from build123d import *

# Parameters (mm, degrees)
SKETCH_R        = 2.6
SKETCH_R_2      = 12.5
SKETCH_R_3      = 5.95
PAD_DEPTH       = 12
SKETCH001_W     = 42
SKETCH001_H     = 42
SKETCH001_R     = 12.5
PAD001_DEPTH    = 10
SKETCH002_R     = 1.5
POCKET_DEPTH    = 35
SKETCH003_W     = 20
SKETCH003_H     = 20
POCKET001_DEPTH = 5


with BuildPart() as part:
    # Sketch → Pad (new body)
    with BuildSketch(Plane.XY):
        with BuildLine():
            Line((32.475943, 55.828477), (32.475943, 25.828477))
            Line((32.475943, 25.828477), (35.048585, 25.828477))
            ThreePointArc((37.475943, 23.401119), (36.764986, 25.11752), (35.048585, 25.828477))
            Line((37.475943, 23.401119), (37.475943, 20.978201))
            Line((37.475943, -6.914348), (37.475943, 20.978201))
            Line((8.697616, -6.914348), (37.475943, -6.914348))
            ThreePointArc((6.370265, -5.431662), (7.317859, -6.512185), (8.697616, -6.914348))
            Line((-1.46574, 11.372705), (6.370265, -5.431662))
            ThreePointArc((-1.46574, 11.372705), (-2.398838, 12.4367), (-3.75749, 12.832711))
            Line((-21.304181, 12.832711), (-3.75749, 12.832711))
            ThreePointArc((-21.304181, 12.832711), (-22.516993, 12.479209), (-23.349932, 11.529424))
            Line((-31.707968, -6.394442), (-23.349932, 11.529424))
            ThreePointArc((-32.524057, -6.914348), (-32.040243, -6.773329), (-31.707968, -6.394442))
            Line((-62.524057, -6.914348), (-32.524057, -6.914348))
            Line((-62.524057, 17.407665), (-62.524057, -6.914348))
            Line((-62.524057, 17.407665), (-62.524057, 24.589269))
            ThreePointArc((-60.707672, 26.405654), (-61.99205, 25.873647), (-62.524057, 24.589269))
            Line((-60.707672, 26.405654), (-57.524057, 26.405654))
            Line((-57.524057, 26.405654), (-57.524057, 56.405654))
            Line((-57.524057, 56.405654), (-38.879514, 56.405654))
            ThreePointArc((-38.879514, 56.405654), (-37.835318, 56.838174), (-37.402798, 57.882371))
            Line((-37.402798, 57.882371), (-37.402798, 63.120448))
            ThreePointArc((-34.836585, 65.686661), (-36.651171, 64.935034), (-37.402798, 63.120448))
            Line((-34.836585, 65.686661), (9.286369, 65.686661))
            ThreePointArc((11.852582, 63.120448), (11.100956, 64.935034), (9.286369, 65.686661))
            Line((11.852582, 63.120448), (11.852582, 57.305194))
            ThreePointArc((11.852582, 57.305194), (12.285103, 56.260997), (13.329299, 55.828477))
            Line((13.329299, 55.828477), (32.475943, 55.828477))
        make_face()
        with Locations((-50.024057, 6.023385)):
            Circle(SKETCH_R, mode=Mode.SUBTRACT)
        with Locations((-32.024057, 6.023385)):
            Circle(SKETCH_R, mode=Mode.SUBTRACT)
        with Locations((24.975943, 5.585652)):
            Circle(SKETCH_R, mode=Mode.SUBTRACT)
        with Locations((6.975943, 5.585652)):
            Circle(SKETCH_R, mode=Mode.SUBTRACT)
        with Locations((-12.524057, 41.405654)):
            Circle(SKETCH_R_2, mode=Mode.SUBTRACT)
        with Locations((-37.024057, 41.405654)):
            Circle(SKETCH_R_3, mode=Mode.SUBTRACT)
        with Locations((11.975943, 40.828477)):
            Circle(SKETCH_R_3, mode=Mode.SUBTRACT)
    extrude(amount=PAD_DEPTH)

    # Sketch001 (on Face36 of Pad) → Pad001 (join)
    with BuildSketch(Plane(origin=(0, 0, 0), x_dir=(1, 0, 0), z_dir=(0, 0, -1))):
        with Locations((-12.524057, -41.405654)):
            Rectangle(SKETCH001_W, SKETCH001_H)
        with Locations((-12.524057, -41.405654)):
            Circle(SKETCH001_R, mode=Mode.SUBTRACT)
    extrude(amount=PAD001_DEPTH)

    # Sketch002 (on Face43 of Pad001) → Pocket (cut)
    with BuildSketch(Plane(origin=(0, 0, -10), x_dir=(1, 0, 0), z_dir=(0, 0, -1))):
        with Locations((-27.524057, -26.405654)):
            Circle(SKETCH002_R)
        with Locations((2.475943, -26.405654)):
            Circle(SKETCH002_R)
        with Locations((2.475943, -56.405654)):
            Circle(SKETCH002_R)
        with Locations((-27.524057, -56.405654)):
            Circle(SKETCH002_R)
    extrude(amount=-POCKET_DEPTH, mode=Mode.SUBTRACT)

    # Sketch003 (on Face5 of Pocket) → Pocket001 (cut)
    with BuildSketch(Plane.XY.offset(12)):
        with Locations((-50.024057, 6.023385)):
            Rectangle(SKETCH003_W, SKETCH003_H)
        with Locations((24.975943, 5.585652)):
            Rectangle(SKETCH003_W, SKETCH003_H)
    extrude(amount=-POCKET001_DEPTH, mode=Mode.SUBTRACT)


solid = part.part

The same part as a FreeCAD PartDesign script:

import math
import FreeCAD as App
import Part
import Sketcher
from FreeCAD import Vector
Q = App.Units.Quantity

doc = App.newDocument("Part")
params = doc.addObject("Spreadsheet::Sheet", "Params")
for row, (alias, value) in enumerate([
    ("sketch1_diameter", "25 mm"),
    ("sketch1_diameter2", "5.2 mm"),
    ("sketch1_diameter3", "11.9 mm"),
    ("sketch1_width", "30 mm"),
    ("pad1_length", "12 mm"),
    ("sketch2_diameter", "25 mm"),
    ("sketch2_width", "42 mm"),
    ("pad2_length", "10 mm"),
    ("sketch3_diameter", "3 mm"),
    ("pocket1_length", "35 mm"),
    ("sketch4_width", "20 mm"),
    ("pocket2_length", "5 mm"),
], start=1):
    params.set(f"A{row}", alias)
    params.set(f"B{row}", "=" + value)
    params.setAlias(f"B{row}", alias)

body = doc.addObject("PartDesign::Body", "Body")

sketch1 = body.newObject("Sketcher::SketchObject", "Sketch")
sketch1.AttachmentSupport = (doc.getObject("XY_Plane"), [""])
sketch1.MapMode = "FlatFace"
sketch1.addGeometry(Part.LineSegment(Vector(32.5, 25.8, 0), Vector(32.5, 55.8, 0)), False)
sketch1.addGeometry(Part.LineSegment(Vector(32.5, 55.8, 0), Vector(13.3, 55.8, 0)), False)
sketch1.addGeometry(Part.ArcOfCircle(Part.Circle(Vector(13.3, 57.3, 0), Vector(0, 0, 1), 1.5), math.radians(-180), math.radians(-90)), False)
sketch1.addGeometry(Part.LineSegment(Vector(11.9, 57.3, 0), Vector(11.9, 63.1, 0)), False)
sketch1.addGeometry(Part.ArcOfCircle(Part.Circle(Vector(9.3, 63.1, 0), Vector(0, 0, 1), 2.6), math.radians(0), math.radians(90)), False)
sketch1.addGeometry(Part.LineSegment(Vector(9.3, 65.7, 0), Vector(-34.8, 65.7, 0)), False)
sketch1.addGeometry(Part.ArcOfCircle(Part.Circle(Vector(-34.8, 63.1, 0), Vector(0, 0, 1), 2.6), math.radians(90), math.radians(180)), False)
sketch1.addGeometry(Part.LineSegment(Vector(-37.4, 63.1, 0), Vector(-37.4, 57.9, 0)), False)
sketch1.addGeometry(Part.ArcOfCircle(Part.Circle(Vector(-38.9, 57.9, 0), Vector(0, 0, 1), 1.5), math.radians(-90), math.radians(0)), False)
sketch1.addGeometry(Part.LineSegment(Vector(-38.9, 56.4, 0), Vector(-57.5, 56.4, 0)), False)
sketch1.addGeometry(Part.LineSegment(Vector(-57.5, 56.4, 0), Vector(-57.5, 26.4, 0)), False)
sketch1.addGeometry(Part.LineSegment(Vector(-57.5, 26.4, 0), Vector(-60.7, 26.4, 0)), False)
sketch1.addGeometry(Part.ArcOfCircle(Part.Circle(Vector(-60.7, 24.6, 0), Vector(0, 0, 1), 1.8), math.radians(90), math.radians(180)), False)
sketch1.addGeometry(Part.LineSegment(Vector(-62.5, 24.6, 0), Vector(-62.5, -6.9, 0)), False)
sketch1.addGeometry(Part.LineSegment(Vector(-62.5, -6.9, 0), Vector(-32.5, -6.9, 0)), False)
sketch1.addGeometry(Part.ArcOfCircle(Part.Circle(Vector(-32.5, -6, 0), Vector(0, 0, 1), 0.9), math.radians(-90), math.radians(-25)), False)
sketch1.addGeometry(Part.LineSegment(Vector(-31.7, -6.4, 0), Vector(-23.3, 11.5, 0)), False)
sketch1.addGeometry(Part.ArcOfCircle(Part.Circle(Vector(-21.3, 10.6, 0), Vector(0, 0, 1), 2.3), math.radians(90), math.radians(155)), False)
sketch1.addGeometry(Part.LineSegment(Vector(-21.3, 12.8, 0), Vector(-3.8, 12.8, 0)), False)
sketch1.addGeometry(Part.ArcOfCircle(Part.Circle(Vector(-3.8, 10.3, 0), Vector(0, 0, 1), 2.5), math.radians(25), math.radians(90)), False)
sketch1.addGeometry(Part.LineSegment(Vector(-1.5, 11.4, 0), Vector(6.4, -5.4, 0)), False)
sketch1.addGeometry(Part.ArcOfCircle(Part.Circle(Vector(8.7, -4.3, 0), Vector(0, 0, 1), 2.6), math.radians(-155), math.radians(-90)), False)
sketch1.addGeometry(Part.LineSegment(Vector(8.7, -6.9, 0), Vector(37.5, -6.9, 0)), False)
sketch1.addGeometry(Part.LineSegment(Vector(37.5, -6.9, 0), Vector(37.5, 23.4, 0)), False)
sketch1.addGeometry(Part.ArcOfCircle(Part.Circle(Vector(35, 23.4, 0), Vector(0, 0, 1), 2.4), math.radians(0), math.radians(90)), False)
sketch1.addGeometry(Part.LineSegment(Vector(35, 25.8, 0), Vector(32.5, 25.8, 0)), False)
sketch1.addGeometry(Part.Circle(Vector(25, 5.6, 0), Vector(0, 0, 1), 2.6), False)
sketch1.addGeometry(Part.Circle(Vector(7, 5.6, 0), Vector(0, 0, 1), 2.6), False)
sketch1.addGeometry(Part.Circle(Vector(-32, 6, 0), Vector(0, 0, 1), 2.6), False)
sketch1.addGeometry(Part.Circle(Vector(-50, 6, 0), Vector(0, 0, 1), 2.6), False)
sketch1.addGeometry(Part.Circle(Vector(12, 40.8, 0), Vector(0, 0, 1), 6), False)
sketch1.addGeometry(Part.Circle(Vector(-12.5, 41.4, 0), Vector(0, 0, 1), 12.5), False)
sketch1.addGeometry(Part.Circle(Vector(-37, 41.4, 0), Vector(0, 0, 1), 6), False)
sketch1.addConstraint(Sketcher.Constraint("Coincident", 0, 2, 1, 1))
sketch1.addConstraint(Sketcher.Constraint("Tangent", 1, 2, 2, 2))
sketch1.addConstraint(Sketcher.Constraint("Tangent", 2, 1, 3, 1))
sketch1.addConstraint(Sketcher.Constraint("Tangent", 3, 2, 4, 1))
sketch1.addConstraint(Sketcher.Constraint("Tangent", 4, 2, 5, 1))
sketch1.addConstraint(Sketcher.Constraint("Tangent", 5, 2, 6, 1))
sketch1.addConstraint(Sketcher.Constraint("Tangent", 6, 2, 7, 1))
sketch1.addConstraint(Sketcher.Constraint("Tangent", 7, 2, 8, 2))
sketch1.addConstraint(Sketcher.Constraint("Tangent", 8, 1, 9, 1))
sketch1.addConstraint(Sketcher.Constraint("Coincident", 9, 2, 10, 1))
sketch1.addConstraint(Sketcher.Constraint("Coincident", 10, 2, 11, 1))
sketch1.addConstraint(Sketcher.Constraint("Tangent", 11, 2, 12, 1))
sketch1.addConstraint(Sketcher.Constraint("Tangent", 12, 2, 13, 1))
sketch1.addConstraint(Sketcher.Constraint("Coincident", 13, 2, 14, 1))
sketch1.addConstraint(Sketcher.Constraint("Tangent", 14, 2, 15, 1))
sketch1.addConstraint(Sketcher.Constraint("Tangent", 15, 2, 16, 1))
sketch1.addConstraint(Sketcher.Constraint("Tangent", 16, 2, 17, 2))
sketch1.addConstraint(Sketcher.Constraint("Tangent", 17, 1, 18, 1))
sketch1.addConstraint(Sketcher.Constraint("Tangent", 18, 2, 19, 2))
sketch1.addConstraint(Sketcher.Constraint("Tangent", 19, 1, 20, 1))
sketch1.addConstraint(Sketcher.Constraint("Tangent", 20, 2, 21, 1))
sketch1.addConstraint(Sketcher.Constraint("Tangent", 21, 2, 22, 1))
sketch1.addConstraint(Sketcher.Constraint("Coincident", 22, 2, 23, 1))
sketch1.addConstraint(Sketcher.Constraint("Tangent", 23, 2, 24, 1))
sketch1.addConstraint(Sketcher.Constraint("Tangent", 24, 2, 25, 1))
sketch1.addConstraint(Sketcher.Constraint("Coincident", 25, 2, 0, 1))
sketch1.addConstraint(Sketcher.Constraint("Vertical", 0))
sketch1.addConstraint(Sketcher.Constraint("Horizontal", 1))
sketch1.addConstraint(Sketcher.Constraint("Vertical", 3))
sketch1.addConstraint(Sketcher.Constraint("Horizontal", 5))
sketch1.addConstraint(Sketcher.Constraint("Vertical", 7))
sketch1.addConstraint(Sketcher.Constraint("Horizontal", 9))
sketch1.addConstraint(Sketcher.Constraint("Vertical", 10))
sketch1.addConstraint(Sketcher.Constraint("Horizontal", 11))
sketch1.addConstraint(Sketcher.Constraint("Vertical", 13))
sketch1.addConstraint(Sketcher.Constraint("Horizontal", 14))
sketch1.addConstraint(Sketcher.Constraint("Horizontal", 18))
sketch1.addConstraint(Sketcher.Constraint("Horizontal", 22))
sketch1.addConstraint(Sketcher.Constraint("Vertical", 23))
sketch1.addConstraint(Sketcher.Constraint("Horizontal", 25))
sketch1.addConstraint(Sketcher.Constraint("Equal", 4, 6))
sketch1.addConstraint(Sketcher.Constraint("Equal", 2, 8))
sketch1.addConstraint(Sketcher.Constraint("Equal", 26, 27))
sketch1.addConstraint(Sketcher.Constraint("Equal", 27, 28))
sketch1.addConstraint(Sketcher.Constraint("Equal", 28, 29))
sketch1.addConstraint(Sketcher.Constraint("Equal", 30, 32))
sketch1.addConstraint(Sketcher.Constraint("Horizontal", 26, 3, 27, 3))
sketch1.addConstraint(Sketcher.Constraint("Horizontal", 28, 3, 29, 3))
sketch1.addConstraint(Sketcher.Constraint("Horizontal", 31, 3, 32, 3))
sketch1.addConstraint(Sketcher.Constraint("Horizontal", 14, 2, 21, 2))
sketch1.addConstraint(Sketcher.Constraint("Equal", 14, 0))
sketch1.addConstraint(Sketcher.Constraint("Equal", 0, 10))
sketch1.addConstraint(Sketcher.Constraint("Diameter", 31, 25.0))
sketch1.addConstraint(Sketcher.Constraint("Diameter", 26, 5.2))
sketch1.addConstraint(Sketcher.Constraint("Diameter", 30, 11.9))
sketch1.addConstraint(Sketcher.Constraint("DistanceX", 14, 1, 14, 2, 30.0))
sketch1.addConstraint(Sketcher.Constraint("Angle", 16, Q("65 deg")))
sketch1.addConstraint(Sketcher.Constraint("Angle", 20, Q("-65 deg")))
sketch1.addConstraint(Sketcher.Constraint("DistanceX", 27, 3, 26, 3, 18.0))
sketch1.addConstraint(Sketcher.Constraint("DistanceX", 28, 3, 27, 3, 39.0))
sketch1.addConstraint(Sketcher.Constraint("DistanceX", 29, 3, 28, 3, 18.0))
sketch1.addConstraint(Sketcher.Constraint("DistanceX", 27, 3, 30, 3, 5.0))
sketch1.addConstraint(Sketcher.Constraint("DistanceY", 30, 3, 0, 2, 15.0))
sketch1.addConstraint(Sketcher.Constraint("DistanceX", 31, 3, 0, 2, 45.0))
sketch1.addConstraint(Sketcher.Constraint("DistanceY", 10, 2, 32, 3, 15.0))
sketch1.addConstraint(Sketcher.Constraint("DistanceX", 12, 2, 10, 2, 5.0))
sketch1.addConstraint(Sketcher.Constraint("DistanceX", 0, 2, 23, 2, 5.0))
sketch1.addConstraint(Sketcher.Constraint("DistanceX", 15, 3, 28, 3, 0.5))
sketch1.addConstraint(Sketcher.Constraint("DistanceX", 31, 3, 30, 3, 24.5))
sketch1.addConstraint(Sketcher.Constraint("DistanceX", 32, 3, 31, 3, 24.5))
sketch1.addConstraint(Sketcher.Constraint("DistanceY", 21, 2, 27, 3, 12.5))
sketch1.addConstraint(Sketcher.Constraint("Radius", 21, 2.567951))
sketch1.addConstraint(Sketcher.Constraint("Radius", 24, 2.427359))
sketch1.addConstraint(Sketcher.Constraint("Radius", 2, 1.476717))
sketch1.addConstraint(Sketcher.Constraint("Radius", 4, 2.566213))
sketch1.addConstraint(Sketcher.Constraint("Radius", 12, 1.816386))
sketch1.addConstraint(Sketcher.Constraint("Radius", 15, 0.900455))
sketch1.addConstraint(Sketcher.Constraint("Radius", 17, 2.257235))
sketch1.addConstraint(Sketcher.Constraint("Radius", 19, 2.528665))
sketch1.addConstraint(Sketcher.Constraint("DistanceX", 18, 1, 18, 2, 17.546691))
sketch1.addConstraint(Sketcher.Constraint("DistanceX", -1, 1, 2, 3, 13.329299))
sketch1.addConstraint(Sketcher.Constraint("DistanceX", 6, 3, 17, 3, 13.532401))
sketch1.addConstraint(Sketcher.Constraint("DistanceX", 17, 3, 21, 3, 30.0018))
sketch1.addConstraint(Sketcher.Constraint("DistanceX", 1, 2, 1, 1, 19.146644))
sketch1.addConstraint(Sketcher.Constraint("DistanceY", 3, 1, 3, 2, 5.815254))
sketch1.addConstraint(Sketcher.Constraint("DistanceY", 7, 2, 7, 1, 5.238077))
sketch1.addConstraint(Sketcher.Constraint("DistanceY", 13, 2, 13, 1, 31.503617))
sketch1.addConstraint(Sketcher.Constraint("DistanceY", -1, 1, 8, 3, 57.88237))
sketch1.addConstraint(Sketcher.Constraint("DistanceY", 28, 3, 17, 3, 4.552091))
sketch1.setExpression("Constraints[52]", "Params.sketch1_diameter")
sketch1.setExpression("Constraints[53]", "Params.sketch1_diameter2")
sketch1.setExpression("Constraints[54]", "Params.sketch1_diameter3")
sketch1.setExpression("Constraints[55]", "Params.sketch1_width")
pad1 = body.newObject("PartDesign::Pad", "Pad")
pad1.Profile = sketch1
pad1.setExpression("Length", "Params.pad1_length")

sketch2 = body.newObject("Sketcher::SketchObject", "Sketch001")
sketch2.AttachmentSupport = (doc.getObject("XY_Plane"), [""])
sketch2.MapMode = "FlatFace"
sketch2.addGeometry(Part.LineSegment(Vector(-34, 20, 0), Vector(-34, 62, 0)), False)
sketch2.addGeometry(Part.LineSegment(Vector(-34, 62, 0), Vector(8, 62, 0)), False)
sketch2.addGeometry(Part.LineSegment(Vector(8, 62, 0), Vector(8, 20, 0)), False)
sketch2.addGeometry(Part.LineSegment(Vector(8, 20, 0), Vector(-34, 20, 0)), False)
sketch2.addGeometry(Part.Circle(Vector(-13, 41, 0), Vector(0, 0, 1), 12), False)
sketch2.addConstraint(Sketcher.Constraint("Coincident", 0, 2, 1, 1))
sketch2.addConstraint(Sketcher.Constraint("Coincident", 1, 2, 2, 1))
sketch2.addConstraint(Sketcher.Constraint("Coincident", 2, 2, 3, 1))
sketch2.addConstraint(Sketcher.Constraint("Coincident", 3, 2, 0, 1))
sketch2.addConstraint(Sketcher.Constraint("Vertical", 0))
sketch2.addConstraint(Sketcher.Constraint("Horizontal", 1))
sketch2.addConstraint(Sketcher.Constraint("Vertical", 2))
sketch2.addConstraint(Sketcher.Constraint("Horizontal", 3))
sketch2.addConstraint(Sketcher.Constraint("Equal", 3, 0))
sketch2.addConstraint(Sketcher.Constraint("Diameter", 4, 25.0))
sketch2.addConstraint(Sketcher.Constraint("DistanceX", 1, 1, 1, 2, 42.0))
sketch2.addConstraint(Sketcher.Constraint("DistanceX", 0, 2, 4, 3, 21.0))
sketch2.addConstraint(Sketcher.Constraint("DistanceY", 4, 3, 0, 2, 21.0))
sketch2.addConstraint(Sketcher.Constraint("DistanceX", 4, 3, -1, 1, 12.524057))
sketch2.addConstraint(Sketcher.Constraint("DistanceY", -1, 1, 4, 3, 41.405654))
sketch2.setExpression("Constraints[9]", "Params.sketch2_diameter")
sketch2.setExpression("Constraints[10]", "Params.sketch2_width")
pad2 = body.newObject("PartDesign::Pad", "Pad001")
pad2.Profile = sketch2
pad2.setExpression("Length", "Params.pad2_length")
pad2.Reversed = True

sketch3 = body.newObject("Sketcher::SketchObject", "Sketch002")
sketch3.AttachmentSupport = (doc.getObject("XY_Plane"), [""])
sketch3.MapMode = "FlatFace"
sketch3.AttachmentOffset = App.Placement(Vector(0, 0, -10), App.Rotation())
sketch3.addGeometry(Part.Circle(Vector(-27.5, 26.4, 0), Vector(0, 0, 1), 1.5), False)
sketch3.addGeometry(Part.Circle(Vector(2.5, 26.4, 0), Vector(0, 0, 1), 1.5), False)
sketch3.addGeometry(Part.Circle(Vector(2.5, 56.4, 0), Vector(0, 0, 1), 1.5), False)
sketch3.addGeometry(Part.Circle(Vector(-27.5, 56.4, 0), Vector(0, 0, 1), 1.5), False)
sketch3.addConstraint(Sketcher.Constraint("Equal", 0, 1))
sketch3.addConstraint(Sketcher.Constraint("Equal", 1, 2))
sketch3.addConstraint(Sketcher.Constraint("Equal", 2, 3))
sketch3.addConstraint(Sketcher.Constraint("Horizontal", 0, 3, 1, 3))
sketch3.addConstraint(Sketcher.Constraint("Horizontal", 2, 3, 3, 3))
sketch3.addConstraint(Sketcher.Constraint("Vertical", 1, 3, 2, 3))
sketch3.addConstraint(Sketcher.Constraint("Vertical", 0, 3, 3, 3))
sketch3.addConstraint(Sketcher.Constraint("Diameter", 0, 3.0))
sketch3.addConstraint(Sketcher.Constraint("DistanceX", 0, 3, 1, 3, 30.0))
sketch3.addConstraint(Sketcher.Constraint("DistanceY", 1, 3, 2, 3, 30.0))
sketch3.addConstraint(Sketcher.Constraint("DistanceX", 0, 3, -1, 1, 27.524057))
sketch3.addConstraint(Sketcher.Constraint("DistanceY", -1, 1, 0, 3, 26.405654))
sketch3.setExpression("Constraints[7]", "Params.sketch3_diameter")
pocket1 = body.newObject("PartDesign::Pocket", "Pocket")
pocket1.Profile = sketch3
pocket1.setExpression("Length", "Params.pocket1_length")
pocket1.Reversed = True

sketch4 = body.newObject("Sketcher::SketchObject", "Sketch003")
sketch4.AttachmentSupport = (doc.getObject("XY_Plane"), [""])
sketch4.MapMode = "FlatFace"
sketch4.AttachmentOffset = App.Placement(Vector(0, 0, 12), App.Rotation())
sketch4.addGeometry(Part.LineSegment(Vector(-60, 16, 0), Vector(-60, -4, 0)), False)
sketch4.addGeometry(Part.LineSegment(Vector(-60, -4, 0), Vector(-40, -4, 0)), False)
sketch4.addGeometry(Part.LineSegment(Vector(-40, -4, 0), Vector(-40, 16, 0)), False)
sketch4.addGeometry(Part.LineSegment(Vector(-40, 16, 0), Vector(-60, 16, 0)), False)
sketch4.addGeometry(Part.LineSegment(Vector(15, 16, 0), Vector(15, -4, 0)), False)
sketch4.addGeometry(Part.LineSegment(Vector(15, -4, 0), Vector(35, -4, 0)), False)
sketch4.addGeometry(Part.LineSegment(Vector(35, -4, 0), Vector(35, 16, 0)), False)
sketch4.addGeometry(Part.LineSegment(Vector(35, 16, 0), Vector(15, 16, 0)), False)
sketch4.addConstraint(Sketcher.Constraint("Coincident", 0, 2, 1, 1))
sketch4.addConstraint(Sketcher.Constraint("Coincident", 1, 2, 2, 1))
sketch4.addConstraint(Sketcher.Constraint("Coincident", 2, 2, 3, 1))
sketch4.addConstraint(Sketcher.Constraint("Coincident", 3, 2, 0, 1))
sketch4.addConstraint(Sketcher.Constraint("Coincident", 4, 2, 5, 1))
sketch4.addConstraint(Sketcher.Constraint("Coincident", 5, 2, 6, 1))
sketch4.addConstraint(Sketcher.Constraint("Coincident", 6, 2, 7, 1))
sketch4.addConstraint(Sketcher.Constraint("Coincident", 7, 2, 4, 1))
sketch4.addConstraint(Sketcher.Constraint("Vertical", 0))
sketch4.addConstraint(Sketcher.Constraint("Horizontal", 1))
sketch4.addConstraint(Sketcher.Constraint("Vertical", 2))
sketch4.addConstraint(Sketcher.Constraint("Horizontal", 3))
sketch4.addConstraint(Sketcher.Constraint("Vertical", 4))
sketch4.addConstraint(Sketcher.Constraint("Horizontal", 5))
sketch4.addConstraint(Sketcher.Constraint("Vertical", 6))
sketch4.addConstraint(Sketcher.Constraint("Horizontal", 7))
sketch4.addConstraint(Sketcher.Constraint("Equal", 3, 5))
sketch4.addConstraint(Sketcher.Constraint("Equal", 7, 0))
sketch4.addConstraint(Sketcher.Constraint("Equal", 2, 4))
sketch4.addConstraint(Sketcher.Constraint("DistanceX", 1, 1, 1, 2, 20.0))
sketch4.addConstraint(Sketcher.Constraint("DistanceX", 1, 2, 4, 2, 55.0))
sketch4.addConstraint(Sketcher.Constraint("DistanceY", 4, 2, -1, 1, 4.414348))
sketch4.addConstraint(Sketcher.Constraint("DistanceX", 0, 2, -1, 1, 60.024057))
sketch4.addConstraint(Sketcher.Constraint("DistanceY", 0, 2, -1, 1, 3.976615))
sketch4.setExpression("Constraints[19]", "Params.sketch4_width")
pocket2 = body.newObject("PartDesign::Pocket", "Pocket001")
pocket2.Profile = sketch4
pocket2.setExpression("Length", "Params.pocket2_length")

doc.recompute()
